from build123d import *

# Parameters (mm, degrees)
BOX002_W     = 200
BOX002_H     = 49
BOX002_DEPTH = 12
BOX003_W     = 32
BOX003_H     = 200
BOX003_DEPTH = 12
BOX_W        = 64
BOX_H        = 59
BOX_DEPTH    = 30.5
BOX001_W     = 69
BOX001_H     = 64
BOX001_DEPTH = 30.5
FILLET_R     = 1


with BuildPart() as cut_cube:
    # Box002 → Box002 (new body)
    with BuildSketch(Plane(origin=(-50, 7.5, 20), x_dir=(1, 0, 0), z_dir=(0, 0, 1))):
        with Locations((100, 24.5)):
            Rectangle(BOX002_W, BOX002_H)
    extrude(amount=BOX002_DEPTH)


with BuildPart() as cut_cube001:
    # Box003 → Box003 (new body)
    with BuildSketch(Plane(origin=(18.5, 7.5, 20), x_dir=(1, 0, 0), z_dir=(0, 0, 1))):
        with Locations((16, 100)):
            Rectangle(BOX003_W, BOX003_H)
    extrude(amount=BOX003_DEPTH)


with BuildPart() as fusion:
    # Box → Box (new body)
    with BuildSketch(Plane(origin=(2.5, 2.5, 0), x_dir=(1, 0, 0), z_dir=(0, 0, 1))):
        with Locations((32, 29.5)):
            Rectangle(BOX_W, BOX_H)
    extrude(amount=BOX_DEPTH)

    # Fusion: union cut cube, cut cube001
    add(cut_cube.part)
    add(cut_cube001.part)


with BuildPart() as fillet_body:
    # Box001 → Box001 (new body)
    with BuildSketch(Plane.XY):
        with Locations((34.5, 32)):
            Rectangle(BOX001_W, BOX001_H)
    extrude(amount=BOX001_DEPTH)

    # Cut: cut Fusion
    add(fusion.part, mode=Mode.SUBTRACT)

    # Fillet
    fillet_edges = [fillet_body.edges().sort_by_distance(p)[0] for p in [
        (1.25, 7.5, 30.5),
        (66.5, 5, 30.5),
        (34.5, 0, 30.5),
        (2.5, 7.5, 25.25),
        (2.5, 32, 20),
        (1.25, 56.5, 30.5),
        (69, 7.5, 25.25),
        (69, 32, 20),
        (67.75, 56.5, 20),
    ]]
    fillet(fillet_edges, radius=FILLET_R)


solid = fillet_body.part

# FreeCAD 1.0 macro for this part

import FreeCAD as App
import Part
import Sketcher
from FreeCAD import Vector


def edges_at(feature, points):
    """Names of the edges that pass closest to the given points."""
    edges = feature.Shape.Edges
    near = lambda p: min(range(len(edges)), key=lambda i: edges[i].distToShape(Part.Vertex(*p))[0])
    return sorted({f"Edge{near(p) + 1}" for p in points})

doc = App.newDocument("Part")
body = doc.addObject("PartDesign::Body", "Body")

sketch1 = body.newObject("Sketcher::SketchObject", "Sketch")
sketch1.AttachmentSupport = (doc.getObject("XY_Plane"), [""])
sketch1.MapMode = "FlatFace"
sketch1.AttachmentOffset = App.Placement(Vector(0, 0, 20), App.Rotation())
sketch1.addGeometry(Part.LineSegment(Vector(-50, 56, 0), Vector(-50, 8, 0)), False)
sketch1.addGeometry(Part.LineSegment(Vector(-50, 8, 0), Vector(150, 8, 0)), False)
sketch1.addGeometry(Part.LineSegment(Vector(150, 8, 0), Vector(150, 56, 0)), False)
sketch1.addGeometry(Part.LineSegment(Vector(150, 56, 0), Vector(-50, 56, 0)), False)
sketch1.addConstraint(Sketcher.Constraint("Coincident", 0, 2, 1, 1))
sketch1.addConstraint(Sketcher.Constraint("Coincident", 1, 2, 2, 1))
sketch1.addConstraint(Sketcher.Constraint("Coincident", 2, 2, 3, 1))
sketch1.addConstraint(Sketcher.Constraint("Coincident", 3, 2, 0, 1))
sketch1.addConstraint(Sketcher.Constraint("Vertical", 0))
sketch1.addConstraint(Sketcher.Constraint("Horizontal", 1))
sketch1.addConstraint(Sketcher.Constraint("Vertical", 2))
sketch1.addConstraint(Sketcher.Constraint("Horizontal", 3))
sketch1.addConstraint(Sketcher.Constraint("DistanceX", 1, 1, 1, 2, 200.0))
sketch1.addConstraint(Sketcher.Constraint("DistanceY", 0, 2, 0, 1, 49.0))
sketch1.addConstraint(Sketcher.Constraint("DistanceX", 0, 2, -1, 1, 50.0))
sketch1.addConstraint(Sketcher.Constraint("DistanceY", -1, 1, 0, 2, 7.5))
pad1 = body.newObject("PartDesign::Pad", "Pad")
pad1.Profile = sketch1
pad1.Length = 12
body2 = doc.addObject("PartDesign::Body", "Body001")

sketch2 = body2.newObject("Sketcher::SketchObject", "Sketch001")
sketch2.AttachmentSupport = (doc.getObject("XY_Plane001"), [""])
sketch2.MapMode = "FlatFace"
sketch2.AttachmentOffset = App.Placement(Vector(0, 0, 20), App.Rotation())
sketch2.addGeometry(Part.LineSegment(Vector(18, 208, 0), Vector(18, 8, 0)), False)
sketch2.addGeometry(Part.LineSegment(Vector(18, 8, 0), Vector(50, 8, 0)), False)
sketch2.addGeometry(Part.LineSegment(Vector(50, 8, 0), Vector(50, 208, 0)), False)
sketch2.addGeometry(Part.LineSegment(Vector(50, 208, 0), Vector(18, 208, 0)), False)
sketch2.addConstraint(Sketcher.Constraint("Coincident", 0, 2, 1, 1))
sketch2.addConstraint(Sketcher.Constraint("Coincident", 1, 2, 2, 1))
sketch2.addConstraint(Sketcher.Constraint("Coincident", 2, 2, 3, 1))
sketch2.addConstraint(Sketcher.Constraint("Coincident", 3, 2, 0, 1))
sketch2.addConstraint(Sketcher.Constraint("Vertical", 0))
sketch2.addConstraint(Sketcher.Constraint("Horizontal", 1))
sketch2.addConstraint(Sketcher.Constraint("Vertical", 2))
sketch2.addConstraint(Sketcher.Constraint("Horizontal", 3))
sketch2.addConstraint(Sketcher.Constraint("DistanceX", 1, 1, 1, 2, 32.0))
sketch2.addConstraint(Sketcher.Constraint("DistanceY", 0, 2, 0, 1, 200.0))
sketch2.addConstraint(Sketcher.Constraint("DistanceX", -1, 1, 0, 2, 18.5))
sketch2.addConstraint(Sketcher.Constraint("DistanceY", -1, 1, 0, 2, 7.5))
pad2 = body2.newObject("PartDesign::Pad", "Pad001")
pad2.Profile = sketch2
pad2.Length = 12
body3 = doc.addObject("PartDesign::Body", "Body002")

sketch3 = body3.newObject("Sketcher::SketchObject", "Sketch002")
sketch3.AttachmentSupport = (doc.getObject("XY_Plane002"), [""])
sketch3.MapMode = "FlatFace"
sketch3.addGeometry(Part.LineSegment(Vector(2, 62, 0), Vector(2, 2, 0)), False)
sketch3.addGeometry(Part.LineSegment(Vector(2, 2, 0), Vector(66, 2, 0)), False)
sketch3.addGeometry(Part.LineSegment(Vector(66, 2, 0), Vector(66, 62, 0)), False)
sketch3.addGeometry(Part.LineSegment(Vector(66, 62, 0), Vector(2, 62, 0)), False)
sketch3.addConstraint(Sketcher.Constraint("Coincident", 0, 2, 1, 1))
sketch3.addConstraint(Sketcher.Constraint("Coincident", 1, 2, 2, 1))
sketch3.addConstraint(Sketcher.Constraint("Coincident", 2, 2, 3, 1))
sketch3.addConstraint(Sketcher.Constraint("Coincident", 3, 2, 0, 1))
sketch3.addConstraint(Sketcher.Constraint("Vertical", 0))
sketch3.addConstraint(Sketcher.Constraint("Horizontal", 1))
sketch3.addConstraint(Sketcher.Constraint("Vertical", 2))
sketch3.addConstraint(Sketcher.Constraint("Horizontal", 3))
sketch3.addConstraint(Sketcher.Constraint("DistanceX", 1, 1, 1, 2, 64.0))
sketch3.addConstraint(Sketcher.Constraint("DistanceY", 0, 2, 0, 1, 59.0))
sketch3.addConstraint(Sketcher.Constraint("DistanceX", -1, 1, 0, 2, 2.5))
sketch3.addConstraint(Sketcher.Constraint("DistanceY", -1, 1, 0, 2, 2.5))
pad3 = body3.newObject("PartDesign::Pad", "Pad002")
pad3.Profile = sketch3
pad3.Length = 30.5
doc.recompute()

boolean = body3.newObject("PartDesign::Boolean", "Boolean")
boolean.Type = "Fuse"
boolean.addObjects([body])
doc.recompute()

boolean2 = body3.newObject("PartDesign::Boolean", "Boolean001")
boolean2.Type = "Fuse"
boolean2.addObjects([body2])
body4 = doc.addObject("PartDesign::Body", "Body003")

sketch4 = body4.newObject("Sketcher::SketchObject", "Sketch003")
sketch4.AttachmentSupport = (doc.getObject("XY_Plane003"), [""])
sketch4.MapMode = "FlatFace"
sketch4.addGeometry(Part.LineSegment(Vector(0, 64, 0), Vector(0, 0, 0)), False)
sketch4.addGeometry(Part.LineSegment(Vector(0, 0, 0), Vector(69, 0, 0)), False)
sketch4.addGeometry(Part.LineSegment(Vector(69, 0, 0), Vector(69, 64, 0)), False)
sketch4.addGeometry(Part.LineSegment(Vector(69, 64, 0), Vector(0, 64, 0)), False)
sketch4.addConstraint(Sketcher.Constraint("Coincident", 0, 2, 1, 1))
sketch4.addConstraint(Sketcher.Constraint("Coincident", 1, 2, 2, 1))
sketch4.addConstraint(Sketcher.Constraint("Coincident", 2, 2, 3, 1))
sketch4.addConstraint(Sketcher.Constraint("Coincident", 3, 2, 0, 1))
sketch4.addConstraint(Sketcher.Constraint("Vertical", 0))
sketch4.addConstraint(Sketcher.Constraint("Horizontal", 1))
sketch4.addConstraint(Sketcher.Constraint("Vertical", 2))
sketch4.addConstraint(Sketcher.Constraint("Horizontal", 3))
sketch4.addConstraint(Sketcher.Constraint("Coincident", 0, 2, -1, 1))
sketch4.addConstraint(Sketcher.Constraint("DistanceX", 1, 1, 1, 2, 69.0))
sketch4.addConstraint(Sketcher.Constraint("DistanceY", 0, 2, 0, 1, 64.0))
pad4 = body4.newObject("PartDesign::Pad", "Pad003")
pad4.Profile = sketch4
pad4.Length = 30.5
doc.recompute()

boolean3 = body4.newObject("PartDesign::Boolean", "Boolean002")
boolean3.Type = "Cut"
boolean3.addObjects([body3])
doc.recompute()

fillet = body4.newObject("PartDesign::Fillet", "Fillet")
fillet.Base = (boolean3, edges_at(boolean3, [
    (1.25, 7.5, 30.5),
    (66.5, 5, 30.5),
    (34.5, 0, 30.5),
    (2.5, 7.5, 25.25),
    (2.5, 32, 20),
    (1.25, 56.5, 30.5),
    (69, 7.5, 25.25),
    (69, 32, 20),
    (67.75, 56.5, 20),
]))
fillet.Radius = 1

doc.recompute()
